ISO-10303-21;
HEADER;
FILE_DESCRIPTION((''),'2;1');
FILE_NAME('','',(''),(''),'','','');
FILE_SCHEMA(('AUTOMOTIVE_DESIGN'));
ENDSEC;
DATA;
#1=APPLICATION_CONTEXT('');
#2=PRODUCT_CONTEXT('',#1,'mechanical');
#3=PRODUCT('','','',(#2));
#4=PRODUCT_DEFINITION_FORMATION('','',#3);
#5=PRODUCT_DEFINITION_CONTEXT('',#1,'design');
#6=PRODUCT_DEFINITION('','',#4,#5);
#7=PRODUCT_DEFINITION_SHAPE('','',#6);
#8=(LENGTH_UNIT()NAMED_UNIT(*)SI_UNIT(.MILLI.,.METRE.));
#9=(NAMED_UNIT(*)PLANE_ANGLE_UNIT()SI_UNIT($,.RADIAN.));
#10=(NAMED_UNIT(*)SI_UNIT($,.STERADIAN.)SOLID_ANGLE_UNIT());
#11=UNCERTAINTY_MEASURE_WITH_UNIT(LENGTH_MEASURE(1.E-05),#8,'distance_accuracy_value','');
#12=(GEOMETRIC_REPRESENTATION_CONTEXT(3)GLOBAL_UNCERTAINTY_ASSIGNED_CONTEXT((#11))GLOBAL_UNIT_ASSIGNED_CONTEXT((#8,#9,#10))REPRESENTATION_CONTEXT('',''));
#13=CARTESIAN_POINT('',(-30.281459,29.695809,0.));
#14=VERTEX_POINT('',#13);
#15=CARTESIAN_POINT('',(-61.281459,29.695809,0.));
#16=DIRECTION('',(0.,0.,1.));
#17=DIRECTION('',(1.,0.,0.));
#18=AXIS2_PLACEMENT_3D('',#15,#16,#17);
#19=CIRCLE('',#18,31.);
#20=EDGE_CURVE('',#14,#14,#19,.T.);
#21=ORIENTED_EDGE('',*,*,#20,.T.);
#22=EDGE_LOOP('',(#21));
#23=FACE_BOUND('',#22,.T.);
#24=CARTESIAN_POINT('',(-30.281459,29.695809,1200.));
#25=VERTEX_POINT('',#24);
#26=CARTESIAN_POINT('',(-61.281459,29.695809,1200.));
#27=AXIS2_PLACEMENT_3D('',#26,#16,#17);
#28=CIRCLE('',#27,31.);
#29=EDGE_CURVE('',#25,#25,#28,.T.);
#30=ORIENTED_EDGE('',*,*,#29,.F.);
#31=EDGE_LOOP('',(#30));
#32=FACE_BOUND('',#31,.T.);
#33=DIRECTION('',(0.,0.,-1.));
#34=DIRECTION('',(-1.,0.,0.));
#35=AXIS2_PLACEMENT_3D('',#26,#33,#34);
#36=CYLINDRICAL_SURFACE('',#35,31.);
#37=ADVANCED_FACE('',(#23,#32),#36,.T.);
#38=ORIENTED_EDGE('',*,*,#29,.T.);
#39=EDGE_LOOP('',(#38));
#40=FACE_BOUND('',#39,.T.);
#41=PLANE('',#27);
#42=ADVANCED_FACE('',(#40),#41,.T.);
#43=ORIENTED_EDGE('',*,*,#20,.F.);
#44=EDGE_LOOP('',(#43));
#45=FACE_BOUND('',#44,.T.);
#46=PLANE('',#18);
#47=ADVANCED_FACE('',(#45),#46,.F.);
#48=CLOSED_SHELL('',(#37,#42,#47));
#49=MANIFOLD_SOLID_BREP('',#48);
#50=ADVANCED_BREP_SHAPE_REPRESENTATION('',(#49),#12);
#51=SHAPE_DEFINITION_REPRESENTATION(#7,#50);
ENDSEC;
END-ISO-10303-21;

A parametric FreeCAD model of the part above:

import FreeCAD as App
import Part
import Sketcher
from FreeCAD import Vector
Q = App.Units.Quantity

doc = App.newDocument("Part")
body = doc.addObject("PartDesign::Body", "Body")

sketch1 = body.newObject("Sketcher::SketchObject", "Sketch")
sketch1.AttachmentSupport = (doc.getObject("XY_Plane"), [""])
sketch1.MapMode = "FlatFace"
sketch1.addGeometry(Part.Circle(Vector(-61.281459, 29.695809, 0), Vector(0, 0, 1), 31), False)
sketch1.addConstraint([
    Sketcher.Constraint("Diameter", 0, Q("62 mm")),
    Sketcher.Constraint("DistanceX", 0, 3, -1, 1, Q("61.281459 mm")),
    Sketcher.Constraint("DistanceY", -1, 1, 0, 3, Q("29.695809 mm")),
])
pad1 = body.newObject("PartDesign::Pad", "Pad")
pad1.Profile = sketch1
pad1.Length = 1200

doc.recompute()
